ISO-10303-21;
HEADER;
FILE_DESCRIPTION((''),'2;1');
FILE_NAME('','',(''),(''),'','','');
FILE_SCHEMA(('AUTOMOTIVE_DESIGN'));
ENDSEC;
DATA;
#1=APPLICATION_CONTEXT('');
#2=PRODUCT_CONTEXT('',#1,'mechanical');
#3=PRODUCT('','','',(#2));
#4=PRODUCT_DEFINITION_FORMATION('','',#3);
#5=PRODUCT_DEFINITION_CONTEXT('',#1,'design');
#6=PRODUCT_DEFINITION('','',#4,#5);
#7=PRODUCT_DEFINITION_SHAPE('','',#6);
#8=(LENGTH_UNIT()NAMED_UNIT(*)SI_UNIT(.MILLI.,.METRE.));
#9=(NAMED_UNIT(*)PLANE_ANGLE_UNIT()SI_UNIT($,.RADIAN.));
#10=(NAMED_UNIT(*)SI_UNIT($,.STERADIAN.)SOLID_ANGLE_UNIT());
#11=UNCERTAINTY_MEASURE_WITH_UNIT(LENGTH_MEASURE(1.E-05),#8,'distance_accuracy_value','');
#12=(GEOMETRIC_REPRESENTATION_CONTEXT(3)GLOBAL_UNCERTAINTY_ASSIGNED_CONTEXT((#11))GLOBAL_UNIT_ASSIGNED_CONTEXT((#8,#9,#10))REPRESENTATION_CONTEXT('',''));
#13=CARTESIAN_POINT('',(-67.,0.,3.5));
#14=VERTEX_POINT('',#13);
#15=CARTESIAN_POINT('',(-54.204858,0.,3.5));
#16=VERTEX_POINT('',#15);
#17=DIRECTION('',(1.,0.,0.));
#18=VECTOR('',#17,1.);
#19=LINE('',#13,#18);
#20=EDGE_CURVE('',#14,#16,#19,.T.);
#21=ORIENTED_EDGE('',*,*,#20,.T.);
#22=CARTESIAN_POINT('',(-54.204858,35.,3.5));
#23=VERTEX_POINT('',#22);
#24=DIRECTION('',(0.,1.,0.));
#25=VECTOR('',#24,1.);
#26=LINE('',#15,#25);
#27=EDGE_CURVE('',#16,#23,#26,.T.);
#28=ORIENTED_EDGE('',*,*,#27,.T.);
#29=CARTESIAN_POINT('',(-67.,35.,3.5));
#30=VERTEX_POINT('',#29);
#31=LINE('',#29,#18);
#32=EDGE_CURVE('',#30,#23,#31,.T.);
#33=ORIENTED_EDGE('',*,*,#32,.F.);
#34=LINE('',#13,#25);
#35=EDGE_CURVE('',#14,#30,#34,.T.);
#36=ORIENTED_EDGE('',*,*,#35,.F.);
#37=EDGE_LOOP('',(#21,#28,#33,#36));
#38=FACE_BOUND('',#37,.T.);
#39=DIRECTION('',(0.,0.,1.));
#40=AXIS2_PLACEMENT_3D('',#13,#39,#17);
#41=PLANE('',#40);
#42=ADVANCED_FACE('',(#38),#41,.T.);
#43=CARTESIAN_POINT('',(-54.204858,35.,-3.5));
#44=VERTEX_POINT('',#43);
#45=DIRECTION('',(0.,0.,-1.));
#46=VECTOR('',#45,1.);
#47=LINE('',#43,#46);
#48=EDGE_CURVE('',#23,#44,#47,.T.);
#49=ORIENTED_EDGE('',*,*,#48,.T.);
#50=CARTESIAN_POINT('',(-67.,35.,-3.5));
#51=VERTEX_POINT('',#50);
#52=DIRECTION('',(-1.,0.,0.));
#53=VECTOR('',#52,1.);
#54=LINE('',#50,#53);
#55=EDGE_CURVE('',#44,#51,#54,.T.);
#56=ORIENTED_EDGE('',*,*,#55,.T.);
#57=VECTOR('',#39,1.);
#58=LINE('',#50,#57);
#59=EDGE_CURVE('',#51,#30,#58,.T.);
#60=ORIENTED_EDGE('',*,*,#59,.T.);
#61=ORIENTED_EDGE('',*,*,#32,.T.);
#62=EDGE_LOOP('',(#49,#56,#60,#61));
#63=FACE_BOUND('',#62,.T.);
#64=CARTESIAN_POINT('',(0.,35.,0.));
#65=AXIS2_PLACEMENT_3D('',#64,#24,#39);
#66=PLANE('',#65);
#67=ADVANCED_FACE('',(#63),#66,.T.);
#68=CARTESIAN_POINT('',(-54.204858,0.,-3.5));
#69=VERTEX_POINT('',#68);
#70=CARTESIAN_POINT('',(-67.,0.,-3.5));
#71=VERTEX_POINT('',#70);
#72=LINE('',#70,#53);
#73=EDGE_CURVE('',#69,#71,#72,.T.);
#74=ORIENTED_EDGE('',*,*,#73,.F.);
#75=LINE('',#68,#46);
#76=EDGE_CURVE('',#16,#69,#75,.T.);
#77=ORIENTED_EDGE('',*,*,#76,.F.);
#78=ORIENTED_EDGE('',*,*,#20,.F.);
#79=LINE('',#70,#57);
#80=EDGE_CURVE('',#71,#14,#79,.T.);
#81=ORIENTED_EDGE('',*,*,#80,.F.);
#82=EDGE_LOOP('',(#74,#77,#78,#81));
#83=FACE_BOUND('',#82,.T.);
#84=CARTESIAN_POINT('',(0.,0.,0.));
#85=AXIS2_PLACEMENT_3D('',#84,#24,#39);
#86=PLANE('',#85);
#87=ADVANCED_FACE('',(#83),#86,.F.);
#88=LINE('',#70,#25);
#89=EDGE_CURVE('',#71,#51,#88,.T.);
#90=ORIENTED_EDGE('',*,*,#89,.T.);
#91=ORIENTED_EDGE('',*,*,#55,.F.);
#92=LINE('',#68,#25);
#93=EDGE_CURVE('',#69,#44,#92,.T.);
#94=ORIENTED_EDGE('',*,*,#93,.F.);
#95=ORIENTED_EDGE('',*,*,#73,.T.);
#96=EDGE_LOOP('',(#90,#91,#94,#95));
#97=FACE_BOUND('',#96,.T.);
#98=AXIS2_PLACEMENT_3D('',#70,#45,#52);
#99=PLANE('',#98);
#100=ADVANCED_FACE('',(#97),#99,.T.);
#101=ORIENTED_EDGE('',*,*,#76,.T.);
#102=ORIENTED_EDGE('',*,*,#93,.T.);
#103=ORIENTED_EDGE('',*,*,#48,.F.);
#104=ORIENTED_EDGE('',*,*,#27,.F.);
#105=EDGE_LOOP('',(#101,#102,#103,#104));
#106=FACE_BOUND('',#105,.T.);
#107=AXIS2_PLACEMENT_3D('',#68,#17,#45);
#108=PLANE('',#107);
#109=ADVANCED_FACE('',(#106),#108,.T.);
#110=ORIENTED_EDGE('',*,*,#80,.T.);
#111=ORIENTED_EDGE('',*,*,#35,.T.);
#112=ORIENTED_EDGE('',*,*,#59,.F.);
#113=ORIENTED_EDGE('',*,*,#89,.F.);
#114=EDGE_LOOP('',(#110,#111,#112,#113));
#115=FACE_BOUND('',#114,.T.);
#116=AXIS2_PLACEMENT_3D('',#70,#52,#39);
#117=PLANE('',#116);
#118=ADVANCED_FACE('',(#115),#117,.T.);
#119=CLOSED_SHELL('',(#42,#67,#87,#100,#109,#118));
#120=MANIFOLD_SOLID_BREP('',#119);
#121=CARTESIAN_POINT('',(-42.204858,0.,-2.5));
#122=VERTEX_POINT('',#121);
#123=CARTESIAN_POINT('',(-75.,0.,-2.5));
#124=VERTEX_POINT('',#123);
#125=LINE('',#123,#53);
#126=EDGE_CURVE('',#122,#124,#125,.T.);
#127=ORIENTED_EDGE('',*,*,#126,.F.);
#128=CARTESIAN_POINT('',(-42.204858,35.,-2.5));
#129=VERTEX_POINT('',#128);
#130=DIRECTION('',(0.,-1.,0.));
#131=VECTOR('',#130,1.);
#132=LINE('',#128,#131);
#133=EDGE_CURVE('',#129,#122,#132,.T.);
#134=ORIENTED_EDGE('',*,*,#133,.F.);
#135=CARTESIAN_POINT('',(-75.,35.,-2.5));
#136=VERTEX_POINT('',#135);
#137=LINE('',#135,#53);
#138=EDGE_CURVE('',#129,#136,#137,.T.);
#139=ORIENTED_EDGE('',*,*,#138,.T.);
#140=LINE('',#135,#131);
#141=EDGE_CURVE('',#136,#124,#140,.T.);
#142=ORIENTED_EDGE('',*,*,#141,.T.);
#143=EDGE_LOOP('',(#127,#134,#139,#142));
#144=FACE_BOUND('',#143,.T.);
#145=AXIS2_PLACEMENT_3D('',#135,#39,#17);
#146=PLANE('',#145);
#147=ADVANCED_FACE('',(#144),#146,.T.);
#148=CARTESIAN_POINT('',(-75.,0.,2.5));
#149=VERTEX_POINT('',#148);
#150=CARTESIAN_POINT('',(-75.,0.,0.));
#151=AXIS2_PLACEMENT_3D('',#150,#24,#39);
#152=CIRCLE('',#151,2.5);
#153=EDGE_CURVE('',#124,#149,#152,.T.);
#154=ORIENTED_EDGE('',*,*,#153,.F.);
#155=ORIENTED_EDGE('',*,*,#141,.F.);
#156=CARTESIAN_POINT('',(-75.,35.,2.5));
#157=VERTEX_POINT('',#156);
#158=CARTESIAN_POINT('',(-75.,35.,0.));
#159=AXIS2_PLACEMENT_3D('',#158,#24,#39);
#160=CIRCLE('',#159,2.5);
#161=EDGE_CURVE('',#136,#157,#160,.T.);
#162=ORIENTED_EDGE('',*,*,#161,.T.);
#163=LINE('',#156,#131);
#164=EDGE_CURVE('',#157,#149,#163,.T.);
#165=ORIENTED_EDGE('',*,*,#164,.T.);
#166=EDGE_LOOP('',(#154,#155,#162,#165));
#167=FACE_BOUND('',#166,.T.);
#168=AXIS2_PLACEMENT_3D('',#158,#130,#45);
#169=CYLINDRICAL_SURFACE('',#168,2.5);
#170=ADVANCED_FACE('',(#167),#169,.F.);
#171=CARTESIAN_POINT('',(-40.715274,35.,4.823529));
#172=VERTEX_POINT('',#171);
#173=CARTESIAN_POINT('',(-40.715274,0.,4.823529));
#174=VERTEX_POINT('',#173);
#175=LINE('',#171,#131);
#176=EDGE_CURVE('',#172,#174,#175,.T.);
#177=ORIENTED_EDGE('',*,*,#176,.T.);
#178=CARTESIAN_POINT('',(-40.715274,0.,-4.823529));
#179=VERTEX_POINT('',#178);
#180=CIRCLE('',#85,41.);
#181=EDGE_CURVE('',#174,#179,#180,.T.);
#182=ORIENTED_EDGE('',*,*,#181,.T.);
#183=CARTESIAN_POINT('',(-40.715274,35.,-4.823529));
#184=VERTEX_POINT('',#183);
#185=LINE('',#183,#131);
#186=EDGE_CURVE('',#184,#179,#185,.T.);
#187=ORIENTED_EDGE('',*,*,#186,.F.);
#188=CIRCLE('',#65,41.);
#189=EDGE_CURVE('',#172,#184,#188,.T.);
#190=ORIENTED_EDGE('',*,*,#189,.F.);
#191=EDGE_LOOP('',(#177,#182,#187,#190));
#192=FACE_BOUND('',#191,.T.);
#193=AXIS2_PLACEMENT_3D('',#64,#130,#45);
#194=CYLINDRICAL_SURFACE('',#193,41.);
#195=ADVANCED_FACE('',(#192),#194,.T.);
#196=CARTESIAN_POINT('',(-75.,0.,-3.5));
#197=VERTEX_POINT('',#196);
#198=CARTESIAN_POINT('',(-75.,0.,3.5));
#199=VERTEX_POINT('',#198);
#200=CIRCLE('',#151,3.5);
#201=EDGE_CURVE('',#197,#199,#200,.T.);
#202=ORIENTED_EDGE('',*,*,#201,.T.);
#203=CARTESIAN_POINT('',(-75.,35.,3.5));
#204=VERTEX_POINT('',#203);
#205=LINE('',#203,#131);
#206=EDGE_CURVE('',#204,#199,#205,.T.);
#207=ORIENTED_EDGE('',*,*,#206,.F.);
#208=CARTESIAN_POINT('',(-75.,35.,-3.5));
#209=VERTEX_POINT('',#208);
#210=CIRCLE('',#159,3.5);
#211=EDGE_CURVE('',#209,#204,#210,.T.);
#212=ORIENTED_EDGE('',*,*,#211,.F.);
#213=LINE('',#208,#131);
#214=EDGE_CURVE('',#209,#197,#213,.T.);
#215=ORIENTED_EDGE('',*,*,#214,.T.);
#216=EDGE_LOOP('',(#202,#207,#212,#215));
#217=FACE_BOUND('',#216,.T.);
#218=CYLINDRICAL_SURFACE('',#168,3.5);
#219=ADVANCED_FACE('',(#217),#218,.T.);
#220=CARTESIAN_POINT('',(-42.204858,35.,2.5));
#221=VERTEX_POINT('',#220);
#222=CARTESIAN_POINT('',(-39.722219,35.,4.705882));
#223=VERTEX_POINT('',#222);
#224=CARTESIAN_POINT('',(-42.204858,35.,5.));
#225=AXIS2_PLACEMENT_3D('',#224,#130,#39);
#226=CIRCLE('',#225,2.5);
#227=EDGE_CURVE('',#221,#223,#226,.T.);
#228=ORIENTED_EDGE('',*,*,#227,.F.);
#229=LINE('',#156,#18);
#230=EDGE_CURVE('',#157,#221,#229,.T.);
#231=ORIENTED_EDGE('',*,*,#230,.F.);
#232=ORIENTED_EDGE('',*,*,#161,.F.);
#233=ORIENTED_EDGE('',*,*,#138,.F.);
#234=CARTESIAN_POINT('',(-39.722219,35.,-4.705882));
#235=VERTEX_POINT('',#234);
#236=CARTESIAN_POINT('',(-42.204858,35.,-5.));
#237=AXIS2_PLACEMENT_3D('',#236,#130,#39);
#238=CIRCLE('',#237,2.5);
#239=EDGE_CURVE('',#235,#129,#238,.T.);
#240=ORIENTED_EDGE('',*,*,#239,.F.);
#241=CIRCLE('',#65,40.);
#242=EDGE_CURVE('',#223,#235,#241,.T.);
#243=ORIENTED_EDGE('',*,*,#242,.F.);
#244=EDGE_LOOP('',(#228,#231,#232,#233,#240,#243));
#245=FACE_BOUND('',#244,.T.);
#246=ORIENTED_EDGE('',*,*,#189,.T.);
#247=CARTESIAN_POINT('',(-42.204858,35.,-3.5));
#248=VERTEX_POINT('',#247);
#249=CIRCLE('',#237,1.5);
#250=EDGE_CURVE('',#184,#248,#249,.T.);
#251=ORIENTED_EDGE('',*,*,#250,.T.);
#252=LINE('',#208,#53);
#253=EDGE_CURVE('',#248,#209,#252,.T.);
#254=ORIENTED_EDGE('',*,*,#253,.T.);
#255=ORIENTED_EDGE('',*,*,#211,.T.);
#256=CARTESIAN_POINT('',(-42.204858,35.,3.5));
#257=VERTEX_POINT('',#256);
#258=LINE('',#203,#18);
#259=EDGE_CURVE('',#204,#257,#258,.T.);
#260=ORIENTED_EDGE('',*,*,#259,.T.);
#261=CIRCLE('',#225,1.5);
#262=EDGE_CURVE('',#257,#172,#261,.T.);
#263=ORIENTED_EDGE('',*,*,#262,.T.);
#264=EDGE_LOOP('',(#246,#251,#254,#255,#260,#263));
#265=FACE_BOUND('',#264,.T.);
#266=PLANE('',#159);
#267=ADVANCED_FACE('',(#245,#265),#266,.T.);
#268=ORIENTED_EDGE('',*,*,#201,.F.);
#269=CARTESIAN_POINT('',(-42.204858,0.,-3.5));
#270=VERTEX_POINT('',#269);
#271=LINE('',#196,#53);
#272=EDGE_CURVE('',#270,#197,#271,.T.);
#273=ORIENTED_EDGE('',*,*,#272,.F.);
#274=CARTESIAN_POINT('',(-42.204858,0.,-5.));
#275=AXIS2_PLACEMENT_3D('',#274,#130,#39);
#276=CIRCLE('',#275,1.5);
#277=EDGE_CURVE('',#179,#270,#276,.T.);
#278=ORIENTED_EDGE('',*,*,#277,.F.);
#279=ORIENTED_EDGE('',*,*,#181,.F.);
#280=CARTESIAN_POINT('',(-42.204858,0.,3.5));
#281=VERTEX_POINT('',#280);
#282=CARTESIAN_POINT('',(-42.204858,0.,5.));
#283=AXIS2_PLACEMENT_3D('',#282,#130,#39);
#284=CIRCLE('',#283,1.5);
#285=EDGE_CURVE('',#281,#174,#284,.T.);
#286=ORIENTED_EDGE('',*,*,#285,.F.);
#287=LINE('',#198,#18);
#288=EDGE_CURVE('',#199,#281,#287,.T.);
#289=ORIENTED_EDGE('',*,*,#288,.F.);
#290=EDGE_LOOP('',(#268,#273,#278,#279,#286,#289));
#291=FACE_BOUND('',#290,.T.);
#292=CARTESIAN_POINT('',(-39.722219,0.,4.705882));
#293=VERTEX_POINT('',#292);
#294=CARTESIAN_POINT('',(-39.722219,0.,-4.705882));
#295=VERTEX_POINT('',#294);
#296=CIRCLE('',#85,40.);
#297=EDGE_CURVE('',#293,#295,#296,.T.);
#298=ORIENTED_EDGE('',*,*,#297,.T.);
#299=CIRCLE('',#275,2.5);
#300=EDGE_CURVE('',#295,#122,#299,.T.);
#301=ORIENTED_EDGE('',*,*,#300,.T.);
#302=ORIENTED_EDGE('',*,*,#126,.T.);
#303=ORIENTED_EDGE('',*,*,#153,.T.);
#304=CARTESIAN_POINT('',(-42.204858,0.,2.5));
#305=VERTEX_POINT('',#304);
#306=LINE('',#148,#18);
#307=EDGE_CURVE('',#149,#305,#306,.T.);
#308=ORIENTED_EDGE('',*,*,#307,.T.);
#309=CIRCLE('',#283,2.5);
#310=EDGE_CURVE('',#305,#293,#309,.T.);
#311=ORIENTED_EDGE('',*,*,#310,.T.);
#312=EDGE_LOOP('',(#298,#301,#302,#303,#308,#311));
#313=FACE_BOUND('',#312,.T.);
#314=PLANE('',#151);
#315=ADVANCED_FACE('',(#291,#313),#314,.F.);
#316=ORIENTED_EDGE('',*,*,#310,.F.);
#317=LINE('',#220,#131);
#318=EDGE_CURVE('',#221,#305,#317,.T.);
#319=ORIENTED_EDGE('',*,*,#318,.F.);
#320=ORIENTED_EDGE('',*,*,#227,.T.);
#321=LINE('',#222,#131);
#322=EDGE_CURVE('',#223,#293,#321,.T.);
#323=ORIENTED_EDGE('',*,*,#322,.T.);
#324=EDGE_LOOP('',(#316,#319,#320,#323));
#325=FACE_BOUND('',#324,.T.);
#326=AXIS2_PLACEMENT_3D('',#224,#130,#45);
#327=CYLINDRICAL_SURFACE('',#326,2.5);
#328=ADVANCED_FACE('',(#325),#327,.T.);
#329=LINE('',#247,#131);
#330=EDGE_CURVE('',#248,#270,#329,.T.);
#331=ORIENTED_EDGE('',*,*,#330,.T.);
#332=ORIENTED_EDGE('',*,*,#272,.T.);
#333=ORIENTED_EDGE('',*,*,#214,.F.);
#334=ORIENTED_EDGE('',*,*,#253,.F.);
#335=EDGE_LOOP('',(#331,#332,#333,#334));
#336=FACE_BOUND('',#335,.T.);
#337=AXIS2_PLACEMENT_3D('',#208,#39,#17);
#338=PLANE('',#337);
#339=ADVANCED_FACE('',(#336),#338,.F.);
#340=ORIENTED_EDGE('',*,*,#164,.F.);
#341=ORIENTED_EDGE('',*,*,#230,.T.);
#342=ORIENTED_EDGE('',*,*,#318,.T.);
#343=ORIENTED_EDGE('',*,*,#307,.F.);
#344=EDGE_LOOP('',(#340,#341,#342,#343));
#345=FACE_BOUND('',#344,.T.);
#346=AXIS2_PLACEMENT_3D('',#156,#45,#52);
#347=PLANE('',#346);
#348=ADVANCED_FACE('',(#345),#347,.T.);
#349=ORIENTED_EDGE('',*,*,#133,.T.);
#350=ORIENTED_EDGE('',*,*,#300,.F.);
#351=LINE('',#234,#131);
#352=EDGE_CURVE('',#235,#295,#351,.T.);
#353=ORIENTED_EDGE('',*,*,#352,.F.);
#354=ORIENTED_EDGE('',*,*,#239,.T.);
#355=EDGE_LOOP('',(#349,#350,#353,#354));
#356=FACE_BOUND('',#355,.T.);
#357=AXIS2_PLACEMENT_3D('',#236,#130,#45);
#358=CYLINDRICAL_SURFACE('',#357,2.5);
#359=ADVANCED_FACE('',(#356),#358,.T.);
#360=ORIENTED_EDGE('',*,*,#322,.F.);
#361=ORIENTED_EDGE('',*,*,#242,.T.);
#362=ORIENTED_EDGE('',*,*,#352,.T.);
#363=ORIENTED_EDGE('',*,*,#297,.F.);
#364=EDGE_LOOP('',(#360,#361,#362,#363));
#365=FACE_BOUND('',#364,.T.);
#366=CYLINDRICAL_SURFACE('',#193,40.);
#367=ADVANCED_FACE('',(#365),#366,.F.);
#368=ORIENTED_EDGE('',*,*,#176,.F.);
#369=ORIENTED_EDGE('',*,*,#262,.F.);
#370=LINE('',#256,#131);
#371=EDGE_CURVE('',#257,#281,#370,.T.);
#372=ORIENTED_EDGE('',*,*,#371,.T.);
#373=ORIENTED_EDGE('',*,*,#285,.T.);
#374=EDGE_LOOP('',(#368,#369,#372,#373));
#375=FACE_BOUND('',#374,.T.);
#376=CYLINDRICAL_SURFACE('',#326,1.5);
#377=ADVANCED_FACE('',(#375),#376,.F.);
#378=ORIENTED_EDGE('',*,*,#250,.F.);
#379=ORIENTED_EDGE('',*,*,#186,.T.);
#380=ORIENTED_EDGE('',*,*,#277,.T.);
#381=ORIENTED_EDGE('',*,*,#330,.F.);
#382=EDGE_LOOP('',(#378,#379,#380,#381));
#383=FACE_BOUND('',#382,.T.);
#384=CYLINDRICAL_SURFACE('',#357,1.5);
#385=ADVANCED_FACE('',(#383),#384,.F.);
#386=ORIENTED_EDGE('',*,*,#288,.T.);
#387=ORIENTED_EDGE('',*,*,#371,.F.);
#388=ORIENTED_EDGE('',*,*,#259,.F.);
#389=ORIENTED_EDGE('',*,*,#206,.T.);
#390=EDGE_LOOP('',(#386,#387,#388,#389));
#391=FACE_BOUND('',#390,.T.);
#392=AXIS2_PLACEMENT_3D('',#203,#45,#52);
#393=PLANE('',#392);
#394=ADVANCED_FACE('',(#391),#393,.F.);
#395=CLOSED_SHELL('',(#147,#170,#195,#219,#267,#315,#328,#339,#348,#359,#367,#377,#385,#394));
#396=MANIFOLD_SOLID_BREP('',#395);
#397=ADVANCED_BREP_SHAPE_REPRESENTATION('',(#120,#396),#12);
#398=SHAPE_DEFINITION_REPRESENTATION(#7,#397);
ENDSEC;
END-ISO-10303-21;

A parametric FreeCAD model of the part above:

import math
import FreeCAD as App
import Part
import Sketcher
from FreeCAD import Vector


def add_polygon(sketch, points):
    """Adds a closed chain of lines whose ends are joined by coincident constraints."""
    first, n = sketch.GeometryCount, len(points)
    for a, b in zip(points, points[1:] + points[:1]):
        sketch.addGeometry(Part.LineSegment(App.Vector(*a, 0), App.Vector(*b, 0)), False)
    for i in range(n):
        sketch.addConstraint(Sketcher.Constraint("Coincident", first + i, 2, first + (i + 1) % n, 1))

doc = App.newDocument("Part")
body = doc.addObject("PartDesign::Body", "Body")

sketch1 = body.newObject("Sketcher::SketchObject", "Sketch")
sketch1.AttachmentSupport = (doc.getObject("XZ_Plane"), [""])
sketch1.MapMode = "FlatFace"
sketch1.addGeometry([
    Part.LineSegment(Vector(-42.2, -3.5, 0), Vector(-75, -3.5, 0)),
    Part.ArcOfCircle(Part.Circle(Vector(-75, 0, 0), Vector(0, 0, 1), 3.5), math.radians(90), math.radians(270)),
    Part.LineSegment(Vector(-75, 3.5, 0), Vector(-42.2, 3.5, 0)),
    Part.ArcOfCircle(Part.Circle(Vector(-42.2, 5, 0), Vector(0, 0, 1), 1.5), math.radians(-90), math.radians(-7)),
    Part.ArcOfCircle(Part.Circle(Vector(0, 0, 0), Vector(0, 0, 1), 41), math.radians(-173), math.radians(173)),
    Part.ArcOfCircle(Part.Circle(Vector(-42.2, -5, 0), Vector(0, 0, 1), 1.5), math.radians(7), math.radians(90)),
    Part.LineSegment(Vector(-75, -2.5, 0), Vector(-42.2, -2.5, 0)),
    Part.ArcOfCircle(Part.Circle(Vector(-42.2, -5, 0), Vector(0, 0, 1), 2.5), math.radians(7), math.radians(90)),
    Part.ArcOfCircle(Part.Circle(Vector(0, 0, 0), Vector(0, 0, 1), 40), math.radians(-173), math.radians(173)),
    Part.ArcOfCircle(Part.Circle(Vector(-42.2, 5, 0), Vector(0, 0, 1), 2.5), math.radians(-90), math.radians(-7)),
    Part.LineSegment(Vector(-42.2, 2.5, 0), Vector(-75, 2.5, 0)),
    Part.ArcOfCircle(Part.Circle(Vector(-75, 0, 0), Vector(0, 0, 1), 2.5), math.radians(90), math.radians(270)),
], False)
sketch1.addConstraint([
    Sketcher.Constraint("Tangent", 0, 2, 1, 2),
    Sketcher.Constraint("Tangent", 1, 1, 2, 1),
    Sketcher.Constraint("Tangent", 2, 2, 3, 1),
    Sketcher.Constraint("Tangent", 3, 2, 4, 2),
    Sketcher.Constraint("Tangent", 4, 1, 5, 1),
    Sketcher.Constraint("Tangent", 5, 2, 0, 1),
    Sketcher.Constraint("Tangent", 6, 2, 7, 2),
    Sketcher.Constraint("Tangent", 7, 1, 8, 1),
    Sketcher.Constraint("Tangent", 8, 2, 9, 2),
    Sketcher.Constraint("Tangent", 9, 1, 10, 1),
    Sketcher.Constraint("Tangent", 10, 2, 11, 1),
    Sketcher.Constraint("Tangent", 11, 2, 6, 1),
    Sketcher.Constraint("Horizontal", 0),
    Sketcher.Constraint("Horizontal", 2),
    Sketcher.Constraint("Horizontal", 6),
    Sketcher.Constraint("Horizontal", 10),
    Sketcher.Constraint("Coincident", 4, 3, -1, 1),
    Sketcher.Constraint("Coincident", 8, 3, -1, 1),
    Sketcher.Constraint("Coincident", 7, 3, 5, 3),
    Sketcher.Constraint("Coincident", 9, 3, 3, 3),
    Sketcher.Constraint("Equal", 3, 5),
    Sketcher.Constraint("Equal", 9, 11),
    Sketcher.Constraint("PointOnObject", 1, 3, -1),
    Sketcher.Constraint("Vertical", 11, 3, 0, 2),
    Sketcher.Constraint("Radius", 4, 41.0),
    Sketcher.Constraint("Radius", 8, 40.0),
    Sketcher.Constraint("Radius", 1, 3.5),
    Sketcher.Constraint("DistanceX", 1, 3, -1, 1, 75.0),
])
pad1 = body.newObject("PartDesign::Pad", "Pad")
pad1.Profile = sketch1
pad1.Length = 35
pad1.Reversed = True
body2 = doc.addObject("PartDesign::Body", "Body001")

sketch2 = body2.newObject("Sketcher::SketchObject", "Sketch001")
sketch2.AttachmentSupport = (doc.getObject("XZ_Plane001"), [""])
sketch2.MapMode = "FlatFace"
sketch2.AttachmentOffset = App.Placement(Vector(0, 0, -35), App.Rotation())
add_polygon(sketch2, [(-67, -4), (-67, 4), (-54, 4), (-54, -4)])
sketch2.addConstraint([
    Sketcher.Constraint("Vertical", 0),
    Sketcher.Constraint("Horizontal", 1),
    Sketcher.Constraint("Vertical", 2),
    Sketcher.Constraint("Horizontal", 3),
    Sketcher.Constraint("DistanceY", 0, 1, 0, 2, 7.0),
    Sketcher.Constraint("DistanceX", 0, 2, -1, 1, 67.0),
    Sketcher.Constraint("DistanceY", -1, 1, 0, 2, 3.5),
    Sketcher.Constraint("DistanceX", 1, 1, 1, 2, 12.795142),
])
pad2 = body2.newObject("PartDesign::Pad", "Pad001")
pad2.Profile = sketch2
pad2.Length = 35

doc.recompute()
